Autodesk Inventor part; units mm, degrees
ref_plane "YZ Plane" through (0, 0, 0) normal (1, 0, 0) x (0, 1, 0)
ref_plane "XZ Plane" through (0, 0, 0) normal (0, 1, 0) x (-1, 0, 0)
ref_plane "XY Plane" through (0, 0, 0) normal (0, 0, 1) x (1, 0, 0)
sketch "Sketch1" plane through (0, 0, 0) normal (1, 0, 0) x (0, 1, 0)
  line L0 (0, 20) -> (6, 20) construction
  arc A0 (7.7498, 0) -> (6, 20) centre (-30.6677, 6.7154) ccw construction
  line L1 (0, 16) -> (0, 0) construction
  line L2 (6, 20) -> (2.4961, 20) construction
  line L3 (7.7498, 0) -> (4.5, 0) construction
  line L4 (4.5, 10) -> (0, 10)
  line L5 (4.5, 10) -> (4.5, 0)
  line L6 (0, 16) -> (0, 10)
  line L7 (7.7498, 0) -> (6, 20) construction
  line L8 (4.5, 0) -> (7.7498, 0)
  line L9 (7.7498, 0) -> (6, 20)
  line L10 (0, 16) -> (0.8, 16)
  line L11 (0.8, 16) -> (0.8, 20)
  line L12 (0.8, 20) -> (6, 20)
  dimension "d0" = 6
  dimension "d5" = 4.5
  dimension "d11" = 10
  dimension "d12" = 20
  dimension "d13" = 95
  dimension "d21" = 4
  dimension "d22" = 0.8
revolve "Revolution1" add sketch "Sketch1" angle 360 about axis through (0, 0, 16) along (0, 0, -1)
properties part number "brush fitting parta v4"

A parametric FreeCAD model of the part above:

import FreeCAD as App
import Part
import Sketcher

V = App.Vector
Q = App.Units.Quantity


def add_polygon(sketch, points):
    """Adds a closed chain of lines whose ends are joined by coincident constraints."""
    first, n = sketch.GeometryCount, len(points)
    for a, b in zip(points, points[1:] + points[:1]):
        sketch.addGeometry(Part.LineSegment(App.Vector(*a, 0), App.Vector(*b, 0)), False)
    for i in range(n):
        sketch.addConstraint(Sketcher.Constraint("Coincident", first + i, 2, first + (i + 1) % n, 1))

doc = App.newDocument("Part")
body = doc.addObject("PartDesign::Body", "Body")

# Sketch on YZ plane
sketch1 = doc.addObject("Sketcher::SketchObject", "Sketch")
body.addObject(sketch1)
sketch1.AttachmentSupport = (doc.YZ_Plane, [""])
sketch1.MapMode = "FlatFace"
add_polygon(sketch1, [(0, 10), (4.5, 10), (4.5, 0), (7.7, 0), (6, 20), (0.8, 20), (0.8, 16), (0, 16)])  # lines 0-7
sketch1.addConstraint(Sketcher.Constraint("Horizontal", 0))
sketch1.addConstraint(Sketcher.Constraint("Vertical", 1))
sketch1.addConstraint(Sketcher.Constraint("Horizontal", 2))
sketch1.addConstraint(Sketcher.Constraint("Horizontal", 4))
sketch1.addConstraint(Sketcher.Constraint("Vertical", 5))
sketch1.addConstraint(Sketcher.Constraint("Horizontal", 6))
sketch1.addConstraint(Sketcher.Constraint("Vertical", 7))
sketch1.addConstraint(Sketcher.Constraint("PointOnObject", 1, 2, -1))
sketch1.addConstraint(Sketcher.Constraint("PointOnObject", 6, 2, -2))
sketch1.addConstraint(Sketcher.Constraint("DistanceY", 1, 2, 1, 1, Q("10 mm")))
sketch1.addConstraint(Sketcher.Constraint("DistanceY", 5, 2, 5, 1, Q("4 mm")))
sketch1.addConstraint(Sketcher.Constraint("DistanceY", 7, 2, 7, 1, Q("6 mm")))
sketch1.addConstraint(Sketcher.Constraint("Angle", 3, Q("95 deg")))
sketch1.addConstraint(Sketcher.Constraint("DistanceX", 0, 1, 0, 2, Q("4.5 mm")))
sketch1.addConstraint(Sketcher.Constraint("DistanceX", 6, 2, 6, 1, Q("0.8 mm")))
sketch1.addConstraint(Sketcher.Constraint("DistanceX", -1, 1, 3, 2, Q("6 mm")))
revolution = doc.addObject("PartDesign::Revolution", "Revolution")
body.addObject(revolution)
revolution.Profile = sketch1
revolution.ReferenceAxis = (sketch1, ["V_Axis"])
revolution.Angle = 360

doc.recompute()
